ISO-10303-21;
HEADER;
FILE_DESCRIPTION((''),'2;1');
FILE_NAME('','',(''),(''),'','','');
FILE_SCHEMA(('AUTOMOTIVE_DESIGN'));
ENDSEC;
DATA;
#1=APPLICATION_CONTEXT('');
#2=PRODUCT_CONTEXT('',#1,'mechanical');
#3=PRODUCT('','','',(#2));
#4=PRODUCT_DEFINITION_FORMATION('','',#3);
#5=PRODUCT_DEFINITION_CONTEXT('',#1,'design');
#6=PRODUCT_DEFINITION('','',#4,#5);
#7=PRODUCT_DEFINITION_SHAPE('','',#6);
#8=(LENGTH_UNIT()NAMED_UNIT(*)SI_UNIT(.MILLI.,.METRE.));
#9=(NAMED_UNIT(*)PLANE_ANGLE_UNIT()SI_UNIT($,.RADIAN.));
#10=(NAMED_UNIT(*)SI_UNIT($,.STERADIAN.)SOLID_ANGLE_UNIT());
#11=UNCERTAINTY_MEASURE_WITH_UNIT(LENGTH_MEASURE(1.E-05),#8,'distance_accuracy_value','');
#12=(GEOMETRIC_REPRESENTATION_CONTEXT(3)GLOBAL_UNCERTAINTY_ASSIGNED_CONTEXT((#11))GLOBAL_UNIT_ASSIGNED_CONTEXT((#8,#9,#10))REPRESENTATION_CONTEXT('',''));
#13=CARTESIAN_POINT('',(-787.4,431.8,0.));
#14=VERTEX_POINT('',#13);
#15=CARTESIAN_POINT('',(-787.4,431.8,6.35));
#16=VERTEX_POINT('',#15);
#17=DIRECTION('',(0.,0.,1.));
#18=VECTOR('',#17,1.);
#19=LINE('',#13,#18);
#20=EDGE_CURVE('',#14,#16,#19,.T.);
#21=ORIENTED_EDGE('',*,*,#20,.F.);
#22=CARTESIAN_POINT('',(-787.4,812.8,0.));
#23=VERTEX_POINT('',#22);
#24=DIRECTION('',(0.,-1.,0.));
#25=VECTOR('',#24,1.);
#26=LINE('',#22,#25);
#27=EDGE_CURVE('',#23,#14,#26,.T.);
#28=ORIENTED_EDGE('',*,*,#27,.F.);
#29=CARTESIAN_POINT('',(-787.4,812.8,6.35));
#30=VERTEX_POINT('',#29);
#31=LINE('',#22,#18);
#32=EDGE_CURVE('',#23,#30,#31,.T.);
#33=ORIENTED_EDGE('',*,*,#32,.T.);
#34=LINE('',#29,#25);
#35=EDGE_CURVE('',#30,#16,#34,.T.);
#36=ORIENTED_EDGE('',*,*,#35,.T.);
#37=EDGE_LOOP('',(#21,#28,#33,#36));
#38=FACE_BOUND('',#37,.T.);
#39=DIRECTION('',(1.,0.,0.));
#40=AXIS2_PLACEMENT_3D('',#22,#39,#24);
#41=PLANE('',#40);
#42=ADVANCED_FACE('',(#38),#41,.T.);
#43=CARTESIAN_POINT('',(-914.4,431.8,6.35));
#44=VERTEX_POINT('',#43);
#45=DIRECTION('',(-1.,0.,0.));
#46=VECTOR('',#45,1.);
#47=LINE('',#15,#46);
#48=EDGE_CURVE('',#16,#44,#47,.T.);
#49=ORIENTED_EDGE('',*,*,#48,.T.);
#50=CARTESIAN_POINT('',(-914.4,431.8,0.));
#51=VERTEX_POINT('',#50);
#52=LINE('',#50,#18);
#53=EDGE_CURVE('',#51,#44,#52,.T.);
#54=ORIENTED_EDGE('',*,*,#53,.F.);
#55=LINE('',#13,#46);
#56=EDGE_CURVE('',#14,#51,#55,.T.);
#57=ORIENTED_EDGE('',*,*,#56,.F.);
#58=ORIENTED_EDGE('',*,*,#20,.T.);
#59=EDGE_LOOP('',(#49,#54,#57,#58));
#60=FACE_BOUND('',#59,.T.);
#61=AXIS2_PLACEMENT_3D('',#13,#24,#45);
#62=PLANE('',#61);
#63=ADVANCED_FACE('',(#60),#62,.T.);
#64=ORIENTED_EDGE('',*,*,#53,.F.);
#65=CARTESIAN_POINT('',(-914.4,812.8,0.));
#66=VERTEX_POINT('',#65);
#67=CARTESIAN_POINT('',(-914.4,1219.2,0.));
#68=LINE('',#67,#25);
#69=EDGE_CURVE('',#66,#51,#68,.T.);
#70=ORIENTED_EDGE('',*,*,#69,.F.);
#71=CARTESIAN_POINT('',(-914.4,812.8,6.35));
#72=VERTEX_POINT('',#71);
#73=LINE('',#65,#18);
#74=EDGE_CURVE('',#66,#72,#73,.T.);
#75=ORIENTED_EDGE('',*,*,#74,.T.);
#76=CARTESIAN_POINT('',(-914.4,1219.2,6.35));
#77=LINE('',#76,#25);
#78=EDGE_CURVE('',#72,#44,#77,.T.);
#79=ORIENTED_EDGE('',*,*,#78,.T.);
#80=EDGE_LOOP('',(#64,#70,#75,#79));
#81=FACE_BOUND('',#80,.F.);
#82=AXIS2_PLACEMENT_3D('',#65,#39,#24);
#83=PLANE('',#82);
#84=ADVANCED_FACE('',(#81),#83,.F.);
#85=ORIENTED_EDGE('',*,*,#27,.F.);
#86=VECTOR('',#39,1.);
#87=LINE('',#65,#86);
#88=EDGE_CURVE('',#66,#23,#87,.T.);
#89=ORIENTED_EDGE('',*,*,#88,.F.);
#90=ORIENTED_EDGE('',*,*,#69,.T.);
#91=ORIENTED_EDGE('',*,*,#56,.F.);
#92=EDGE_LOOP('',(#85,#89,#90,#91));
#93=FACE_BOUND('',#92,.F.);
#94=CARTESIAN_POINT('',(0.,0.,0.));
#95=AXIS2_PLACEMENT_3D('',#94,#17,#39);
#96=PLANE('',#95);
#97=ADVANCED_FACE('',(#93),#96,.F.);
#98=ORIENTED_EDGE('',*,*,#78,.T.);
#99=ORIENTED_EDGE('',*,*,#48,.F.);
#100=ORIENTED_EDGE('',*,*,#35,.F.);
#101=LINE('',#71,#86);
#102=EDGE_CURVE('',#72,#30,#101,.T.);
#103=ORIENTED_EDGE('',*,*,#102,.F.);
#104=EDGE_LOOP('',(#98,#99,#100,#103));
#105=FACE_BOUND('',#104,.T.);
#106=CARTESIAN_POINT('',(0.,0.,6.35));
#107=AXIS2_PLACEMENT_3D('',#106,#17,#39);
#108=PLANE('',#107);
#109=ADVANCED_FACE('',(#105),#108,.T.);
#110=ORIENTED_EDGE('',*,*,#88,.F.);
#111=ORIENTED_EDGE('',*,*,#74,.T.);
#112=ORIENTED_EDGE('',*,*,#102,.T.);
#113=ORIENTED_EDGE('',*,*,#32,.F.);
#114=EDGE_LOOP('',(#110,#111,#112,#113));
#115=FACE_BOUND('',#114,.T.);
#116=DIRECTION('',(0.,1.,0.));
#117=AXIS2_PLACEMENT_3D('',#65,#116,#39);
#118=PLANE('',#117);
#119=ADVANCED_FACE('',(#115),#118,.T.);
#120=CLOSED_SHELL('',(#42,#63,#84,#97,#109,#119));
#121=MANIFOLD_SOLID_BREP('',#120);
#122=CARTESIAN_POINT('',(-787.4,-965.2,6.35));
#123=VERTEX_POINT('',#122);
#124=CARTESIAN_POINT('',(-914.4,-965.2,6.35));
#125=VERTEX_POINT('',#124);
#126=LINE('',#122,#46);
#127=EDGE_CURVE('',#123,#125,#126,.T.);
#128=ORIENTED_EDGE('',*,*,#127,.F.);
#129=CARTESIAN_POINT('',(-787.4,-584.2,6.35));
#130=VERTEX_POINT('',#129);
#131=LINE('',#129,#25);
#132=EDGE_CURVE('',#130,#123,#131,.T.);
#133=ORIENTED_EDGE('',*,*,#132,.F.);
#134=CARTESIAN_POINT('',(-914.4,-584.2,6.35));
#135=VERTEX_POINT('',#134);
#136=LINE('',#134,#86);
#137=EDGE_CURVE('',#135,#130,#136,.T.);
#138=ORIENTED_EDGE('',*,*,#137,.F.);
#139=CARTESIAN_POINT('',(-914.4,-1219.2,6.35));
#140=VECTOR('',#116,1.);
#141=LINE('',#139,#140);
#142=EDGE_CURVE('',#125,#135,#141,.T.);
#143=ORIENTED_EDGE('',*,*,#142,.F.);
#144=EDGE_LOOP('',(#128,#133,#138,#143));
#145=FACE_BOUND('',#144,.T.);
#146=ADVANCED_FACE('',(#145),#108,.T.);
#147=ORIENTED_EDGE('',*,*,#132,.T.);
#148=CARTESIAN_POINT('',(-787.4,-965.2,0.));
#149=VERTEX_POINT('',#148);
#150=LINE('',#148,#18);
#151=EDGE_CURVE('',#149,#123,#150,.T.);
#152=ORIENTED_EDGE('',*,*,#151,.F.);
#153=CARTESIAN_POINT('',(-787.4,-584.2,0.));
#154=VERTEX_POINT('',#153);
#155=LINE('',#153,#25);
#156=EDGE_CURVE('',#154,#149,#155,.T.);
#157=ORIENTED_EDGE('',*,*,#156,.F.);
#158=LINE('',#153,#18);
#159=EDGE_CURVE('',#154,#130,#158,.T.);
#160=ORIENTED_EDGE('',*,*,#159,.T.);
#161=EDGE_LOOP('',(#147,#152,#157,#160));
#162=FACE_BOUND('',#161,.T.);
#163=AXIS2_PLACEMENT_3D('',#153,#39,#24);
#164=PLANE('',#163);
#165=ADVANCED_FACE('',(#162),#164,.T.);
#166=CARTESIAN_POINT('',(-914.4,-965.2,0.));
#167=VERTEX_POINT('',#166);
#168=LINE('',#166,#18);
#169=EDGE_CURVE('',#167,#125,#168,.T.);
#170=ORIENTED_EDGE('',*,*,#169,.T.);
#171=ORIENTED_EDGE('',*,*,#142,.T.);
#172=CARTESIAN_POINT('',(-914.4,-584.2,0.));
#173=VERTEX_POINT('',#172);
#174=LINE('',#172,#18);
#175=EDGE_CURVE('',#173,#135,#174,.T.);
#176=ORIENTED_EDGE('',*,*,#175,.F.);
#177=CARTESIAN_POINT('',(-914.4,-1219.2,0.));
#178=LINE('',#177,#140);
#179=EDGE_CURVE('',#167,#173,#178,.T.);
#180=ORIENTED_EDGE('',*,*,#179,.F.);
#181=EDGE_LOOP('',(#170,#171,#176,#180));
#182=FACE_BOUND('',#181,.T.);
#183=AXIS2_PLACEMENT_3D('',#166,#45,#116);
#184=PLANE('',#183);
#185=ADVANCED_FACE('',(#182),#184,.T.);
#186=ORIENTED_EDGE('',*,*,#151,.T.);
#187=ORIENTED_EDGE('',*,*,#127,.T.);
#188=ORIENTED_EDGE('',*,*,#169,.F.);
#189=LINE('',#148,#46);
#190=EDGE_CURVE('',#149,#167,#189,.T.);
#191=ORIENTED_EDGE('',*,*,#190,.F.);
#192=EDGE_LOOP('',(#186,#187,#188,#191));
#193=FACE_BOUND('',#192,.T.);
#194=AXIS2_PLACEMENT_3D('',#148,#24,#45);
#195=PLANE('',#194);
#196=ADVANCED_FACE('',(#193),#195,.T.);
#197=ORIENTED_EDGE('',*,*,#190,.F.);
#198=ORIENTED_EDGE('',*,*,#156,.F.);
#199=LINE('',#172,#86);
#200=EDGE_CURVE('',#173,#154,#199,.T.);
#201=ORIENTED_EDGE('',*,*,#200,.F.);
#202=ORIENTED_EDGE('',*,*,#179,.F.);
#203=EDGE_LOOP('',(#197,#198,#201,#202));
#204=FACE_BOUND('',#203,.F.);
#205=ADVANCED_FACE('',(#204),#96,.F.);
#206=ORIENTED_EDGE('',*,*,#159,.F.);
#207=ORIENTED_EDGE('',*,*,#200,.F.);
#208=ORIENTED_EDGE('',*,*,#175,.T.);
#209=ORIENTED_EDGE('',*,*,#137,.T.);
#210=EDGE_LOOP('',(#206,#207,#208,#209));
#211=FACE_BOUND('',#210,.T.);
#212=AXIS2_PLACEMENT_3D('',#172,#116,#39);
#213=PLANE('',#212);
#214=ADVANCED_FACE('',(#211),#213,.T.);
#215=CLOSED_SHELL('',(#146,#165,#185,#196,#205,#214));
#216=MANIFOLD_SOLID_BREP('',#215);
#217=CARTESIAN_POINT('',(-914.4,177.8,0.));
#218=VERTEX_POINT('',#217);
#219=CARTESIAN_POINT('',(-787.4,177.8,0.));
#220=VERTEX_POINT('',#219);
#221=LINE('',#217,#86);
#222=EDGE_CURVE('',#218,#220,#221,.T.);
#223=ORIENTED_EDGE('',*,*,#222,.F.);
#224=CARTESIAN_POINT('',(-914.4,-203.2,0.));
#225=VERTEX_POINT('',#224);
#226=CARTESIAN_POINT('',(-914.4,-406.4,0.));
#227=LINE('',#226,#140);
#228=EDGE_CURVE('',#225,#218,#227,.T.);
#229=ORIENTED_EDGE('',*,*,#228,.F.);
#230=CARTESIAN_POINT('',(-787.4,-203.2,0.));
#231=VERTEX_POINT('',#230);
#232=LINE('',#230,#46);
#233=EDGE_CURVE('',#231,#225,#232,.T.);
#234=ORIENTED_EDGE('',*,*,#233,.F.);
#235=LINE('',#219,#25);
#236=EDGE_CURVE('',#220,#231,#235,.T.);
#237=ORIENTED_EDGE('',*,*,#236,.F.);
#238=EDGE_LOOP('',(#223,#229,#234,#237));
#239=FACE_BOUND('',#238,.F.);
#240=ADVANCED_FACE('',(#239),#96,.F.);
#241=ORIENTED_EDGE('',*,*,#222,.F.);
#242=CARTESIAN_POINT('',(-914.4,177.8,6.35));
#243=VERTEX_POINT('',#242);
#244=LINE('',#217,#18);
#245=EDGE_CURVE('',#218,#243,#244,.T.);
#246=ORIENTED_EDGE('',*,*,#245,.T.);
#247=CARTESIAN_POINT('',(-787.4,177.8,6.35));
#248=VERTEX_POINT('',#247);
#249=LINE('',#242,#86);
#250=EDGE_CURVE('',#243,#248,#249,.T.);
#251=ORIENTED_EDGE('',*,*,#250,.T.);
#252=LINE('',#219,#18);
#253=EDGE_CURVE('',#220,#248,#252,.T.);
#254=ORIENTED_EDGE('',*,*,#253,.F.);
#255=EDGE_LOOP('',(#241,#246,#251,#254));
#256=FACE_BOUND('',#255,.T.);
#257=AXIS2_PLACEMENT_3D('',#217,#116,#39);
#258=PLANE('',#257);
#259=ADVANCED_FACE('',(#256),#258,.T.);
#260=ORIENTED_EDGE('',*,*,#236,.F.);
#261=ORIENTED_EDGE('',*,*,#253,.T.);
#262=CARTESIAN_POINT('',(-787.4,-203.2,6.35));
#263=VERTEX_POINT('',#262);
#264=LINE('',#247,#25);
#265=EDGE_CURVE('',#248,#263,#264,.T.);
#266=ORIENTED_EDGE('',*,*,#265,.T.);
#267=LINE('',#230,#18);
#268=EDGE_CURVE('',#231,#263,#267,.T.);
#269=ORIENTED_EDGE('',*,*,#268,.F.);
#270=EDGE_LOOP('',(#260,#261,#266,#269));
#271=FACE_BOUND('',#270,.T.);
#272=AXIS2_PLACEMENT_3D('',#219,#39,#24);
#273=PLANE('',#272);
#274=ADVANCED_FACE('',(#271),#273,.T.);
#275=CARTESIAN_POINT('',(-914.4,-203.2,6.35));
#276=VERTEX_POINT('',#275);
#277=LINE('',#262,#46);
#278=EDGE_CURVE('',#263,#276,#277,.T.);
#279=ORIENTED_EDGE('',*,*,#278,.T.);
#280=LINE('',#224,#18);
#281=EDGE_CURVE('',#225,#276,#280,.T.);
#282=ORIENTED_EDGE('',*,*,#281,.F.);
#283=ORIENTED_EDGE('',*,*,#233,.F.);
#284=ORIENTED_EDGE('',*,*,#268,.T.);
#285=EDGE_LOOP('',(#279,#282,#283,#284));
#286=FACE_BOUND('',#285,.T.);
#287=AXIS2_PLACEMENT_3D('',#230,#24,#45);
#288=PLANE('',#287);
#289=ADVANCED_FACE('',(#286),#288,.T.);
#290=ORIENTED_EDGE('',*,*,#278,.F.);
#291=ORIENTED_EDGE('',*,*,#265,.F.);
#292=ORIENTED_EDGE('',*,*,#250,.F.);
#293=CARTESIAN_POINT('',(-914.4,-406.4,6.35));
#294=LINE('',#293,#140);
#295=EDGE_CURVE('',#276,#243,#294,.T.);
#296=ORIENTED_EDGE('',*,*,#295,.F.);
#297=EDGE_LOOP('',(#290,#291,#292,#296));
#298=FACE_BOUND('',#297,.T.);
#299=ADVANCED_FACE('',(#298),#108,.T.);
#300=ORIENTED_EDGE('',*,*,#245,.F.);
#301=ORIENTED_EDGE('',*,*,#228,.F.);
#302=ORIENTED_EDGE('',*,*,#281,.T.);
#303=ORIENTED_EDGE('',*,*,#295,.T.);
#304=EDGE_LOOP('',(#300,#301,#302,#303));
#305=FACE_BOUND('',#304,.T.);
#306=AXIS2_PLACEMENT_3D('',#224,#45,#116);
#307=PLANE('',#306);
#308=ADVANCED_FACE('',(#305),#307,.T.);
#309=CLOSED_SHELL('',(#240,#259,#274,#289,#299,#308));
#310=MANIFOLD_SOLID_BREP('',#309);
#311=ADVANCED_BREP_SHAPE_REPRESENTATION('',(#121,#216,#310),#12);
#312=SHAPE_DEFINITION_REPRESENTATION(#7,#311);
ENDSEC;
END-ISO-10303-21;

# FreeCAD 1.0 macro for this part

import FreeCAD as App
import Part
import Sketcher
from FreeCAD import Vector
Q = App.Units.Quantity


def add_polygon(sketch, points):
    """Adds a closed chain of lines whose ends are joined by coincident constraints."""
    first, n = sketch.GeometryCount, len(points)
    for a, b in zip(points, points[1:] + points[:1]):
        sketch.addGeometry(Part.LineSegment(App.Vector(*a, 0), App.Vector(*b, 0)), False)
    for i in range(n):
        sketch.addConstraint(Sketcher.Constraint("Coincident", first + i, 2, first + (i + 1) % n, 1))

doc = App.newDocument("Part")
params = doc.addObject("Spreadsheet::Sheet", "Params")
for row, (alias, value) in enumerate([
    ("sketch1_width", "5 in"),
    ("sketch1_height", "15 in"),
    ("pad1_length", "0.25 in"),
], start=1):
    params.set(f"A{row}", alias)
    params.set(f"B{row}", "=" + value)
    params.setAlias(f"B{row}", alias)

body = doc.addObject("PartDesign::Body", "Body")
body.AllowCompound = True

# Sketch on XY plane
sketch1 = body.newObject("Sketcher::SketchObject", "Sketch")
sketch1.AttachmentSupport = (doc.getObject("XY_Plane"), [""])
sketch1.MapMode = "FlatFace"
add_polygon(sketch1, [(-914.4, 812.8), (-914.4, 431.8), (-787.4, 431.8), (-787.4, 812.8)])  # lines 0-3
add_polygon(sketch1, [(-914.4, 177.8), (-914.4, -203.2), (-787.4, -203.2), (-787.4, 177.8)])  # lines 4-7
add_polygon(sketch1, [(-787.4, -584.2), (-914.4, -584.2), (-914.4, -965.2), (-787.4, -965.2)])  # lines 8-11
sketch1.addConstraint([
    Sketcher.Constraint("Vertical", 0),
    Sketcher.Constraint("Horizontal", 1),
    Sketcher.Constraint("Vertical", 2),
    Sketcher.Constraint("Horizontal", 3),
    Sketcher.Constraint("Vertical", 4),
    Sketcher.Constraint("Horizontal", 5),
    Sketcher.Constraint("Vertical", 6),
    Sketcher.Constraint("Horizontal", 7),
    Sketcher.Constraint("Horizontal", 8),
    Sketcher.Constraint("Vertical", 9),
    Sketcher.Constraint("Horizontal", 10),
    Sketcher.Constraint("Vertical", 11),
    Sketcher.Constraint("Vertical", 3, 2, 4, 2),
    Sketcher.Constraint("Vertical", 2, 2, 5, 2),
    Sketcher.Constraint("Vertical", 7, 2, 8, 2),
    Sketcher.Constraint("Vertical", 6, 2, 10, 2),
    Sketcher.Constraint("Equal", 2, 4),
    Sketcher.Constraint("Equal", 6, 9),
    Sketcher.Constraint("DistanceX", 1, 1, 1, 2, Q("5 in")),
    Sketcher.Constraint("DistanceY", 0, 2, 0, 1, Q("15 in")),
    Sketcher.Constraint("DistanceY", 6, 2, 1, 2, Q("10 in")),
    Sketcher.Constraint("DistanceY", 8, 2, 4, 2, Q("15 in")),
    Sketcher.Constraint("DistanceX", 0, 2, -1, 1, Q("36 in")),
    Sketcher.Constraint("DistanceY", -1, 1, 0, 2, Q("17 in")),
])
sketch1.setExpression("Constraints[30]", "Params.sketch1_width")
sketch1.setExpression("Constraints[31]", "Params.sketch1_height")
pad1 = body.newObject("PartDesign::Pad", "Pad")
pad1.Profile = sketch1
pad1.setExpression("Length", "Params.pad1_length")

doc.recompute()
